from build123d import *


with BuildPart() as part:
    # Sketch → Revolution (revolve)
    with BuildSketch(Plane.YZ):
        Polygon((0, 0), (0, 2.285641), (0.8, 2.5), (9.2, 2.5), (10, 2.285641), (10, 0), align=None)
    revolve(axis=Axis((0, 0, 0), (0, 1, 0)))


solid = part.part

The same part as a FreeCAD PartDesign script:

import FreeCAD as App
import Part
import Sketcher
from FreeCAD import Vector

doc = App.newDocument("Part")
body = doc.addObject("PartDesign::Body", "Body")

# Sketch on YZ plane
sketch1 = body.newObject("Sketcher::SketchObject", "Sketch")
sketch1.AttachmentSupport = (doc.getObject("YZ_Plane"), [""])
sketch1.MapMode = "FlatFace"
sketch1.addGeometry([
    Part.LineSegment(Vector(0, 2.3, 0), Vector(0, 0, 0)),  # 0
    Part.LineSegment(Vector(0, 0, 0), Vector(10, 0, 0)),  # 1
    Part.LineSegment(Vector(10, 0, 0), Vector(10, 2.3, 0)),  # 2
    Part.LineSegment(Vector(10, 2.3, 0), Vector(9.2, 2.5, 0)),  # 3
    Part.LineSegment(Vector(9.2, 2.5, 0), Vector(0.8, 2.5, 0)),  # 4
    Part.LineSegment(Vector(0.8, 2.5, 0), Vector(0, 2.3, 0)),  # 5
], False)
sketch1.addConstraint([
    Sketcher.Constraint("Coincident", 0, 2, 1, 1),
    Sketcher.Constraint("Coincident", 1, 2, 2, 1),
    Sketcher.Constraint("Coincident", 2, 2, 3, 1),
    Sketcher.Constraint("Coincident", 3, 2, 4, 1),
    Sketcher.Constraint("Coincident", 4, 2, 5, 1),
    Sketcher.Constraint("Coincident", 5, 2, 0, 1),
    Sketcher.Constraint("Vertical", 0),
    Sketcher.Constraint("Horizontal", 1),
    Sketcher.Constraint("Vertical", 2),
    Sketcher.Constraint("Horizontal", 4),
    Sketcher.Constraint("Coincident", 0, 2, -1, 1),
    Sketcher.Constraint("Horizontal", 2, 2, 5, 2),
    Sketcher.Constraint("Equal", 3, 5),
    Sketcher.Constraint("DistanceX", 1, 1, 1, 2, 10.0),
    Sketcher.Constraint("DistanceX", 4, 2, 4, 1, 8.4),
    Sketcher.Constraint("DistanceY", -1, 1, 3, 2, 2.5),
    Sketcher.Constraint("DistanceY", 0, 2, 0, 1, 2.285641),
])
revolution = body.newObject("PartDesign::Revolution", "Revolution")
revolution.Profile = sketch1
revolution.ReferenceAxis = (sketch1, ["H_Axis"])
revolution.Angle = 360

doc.recompute()
